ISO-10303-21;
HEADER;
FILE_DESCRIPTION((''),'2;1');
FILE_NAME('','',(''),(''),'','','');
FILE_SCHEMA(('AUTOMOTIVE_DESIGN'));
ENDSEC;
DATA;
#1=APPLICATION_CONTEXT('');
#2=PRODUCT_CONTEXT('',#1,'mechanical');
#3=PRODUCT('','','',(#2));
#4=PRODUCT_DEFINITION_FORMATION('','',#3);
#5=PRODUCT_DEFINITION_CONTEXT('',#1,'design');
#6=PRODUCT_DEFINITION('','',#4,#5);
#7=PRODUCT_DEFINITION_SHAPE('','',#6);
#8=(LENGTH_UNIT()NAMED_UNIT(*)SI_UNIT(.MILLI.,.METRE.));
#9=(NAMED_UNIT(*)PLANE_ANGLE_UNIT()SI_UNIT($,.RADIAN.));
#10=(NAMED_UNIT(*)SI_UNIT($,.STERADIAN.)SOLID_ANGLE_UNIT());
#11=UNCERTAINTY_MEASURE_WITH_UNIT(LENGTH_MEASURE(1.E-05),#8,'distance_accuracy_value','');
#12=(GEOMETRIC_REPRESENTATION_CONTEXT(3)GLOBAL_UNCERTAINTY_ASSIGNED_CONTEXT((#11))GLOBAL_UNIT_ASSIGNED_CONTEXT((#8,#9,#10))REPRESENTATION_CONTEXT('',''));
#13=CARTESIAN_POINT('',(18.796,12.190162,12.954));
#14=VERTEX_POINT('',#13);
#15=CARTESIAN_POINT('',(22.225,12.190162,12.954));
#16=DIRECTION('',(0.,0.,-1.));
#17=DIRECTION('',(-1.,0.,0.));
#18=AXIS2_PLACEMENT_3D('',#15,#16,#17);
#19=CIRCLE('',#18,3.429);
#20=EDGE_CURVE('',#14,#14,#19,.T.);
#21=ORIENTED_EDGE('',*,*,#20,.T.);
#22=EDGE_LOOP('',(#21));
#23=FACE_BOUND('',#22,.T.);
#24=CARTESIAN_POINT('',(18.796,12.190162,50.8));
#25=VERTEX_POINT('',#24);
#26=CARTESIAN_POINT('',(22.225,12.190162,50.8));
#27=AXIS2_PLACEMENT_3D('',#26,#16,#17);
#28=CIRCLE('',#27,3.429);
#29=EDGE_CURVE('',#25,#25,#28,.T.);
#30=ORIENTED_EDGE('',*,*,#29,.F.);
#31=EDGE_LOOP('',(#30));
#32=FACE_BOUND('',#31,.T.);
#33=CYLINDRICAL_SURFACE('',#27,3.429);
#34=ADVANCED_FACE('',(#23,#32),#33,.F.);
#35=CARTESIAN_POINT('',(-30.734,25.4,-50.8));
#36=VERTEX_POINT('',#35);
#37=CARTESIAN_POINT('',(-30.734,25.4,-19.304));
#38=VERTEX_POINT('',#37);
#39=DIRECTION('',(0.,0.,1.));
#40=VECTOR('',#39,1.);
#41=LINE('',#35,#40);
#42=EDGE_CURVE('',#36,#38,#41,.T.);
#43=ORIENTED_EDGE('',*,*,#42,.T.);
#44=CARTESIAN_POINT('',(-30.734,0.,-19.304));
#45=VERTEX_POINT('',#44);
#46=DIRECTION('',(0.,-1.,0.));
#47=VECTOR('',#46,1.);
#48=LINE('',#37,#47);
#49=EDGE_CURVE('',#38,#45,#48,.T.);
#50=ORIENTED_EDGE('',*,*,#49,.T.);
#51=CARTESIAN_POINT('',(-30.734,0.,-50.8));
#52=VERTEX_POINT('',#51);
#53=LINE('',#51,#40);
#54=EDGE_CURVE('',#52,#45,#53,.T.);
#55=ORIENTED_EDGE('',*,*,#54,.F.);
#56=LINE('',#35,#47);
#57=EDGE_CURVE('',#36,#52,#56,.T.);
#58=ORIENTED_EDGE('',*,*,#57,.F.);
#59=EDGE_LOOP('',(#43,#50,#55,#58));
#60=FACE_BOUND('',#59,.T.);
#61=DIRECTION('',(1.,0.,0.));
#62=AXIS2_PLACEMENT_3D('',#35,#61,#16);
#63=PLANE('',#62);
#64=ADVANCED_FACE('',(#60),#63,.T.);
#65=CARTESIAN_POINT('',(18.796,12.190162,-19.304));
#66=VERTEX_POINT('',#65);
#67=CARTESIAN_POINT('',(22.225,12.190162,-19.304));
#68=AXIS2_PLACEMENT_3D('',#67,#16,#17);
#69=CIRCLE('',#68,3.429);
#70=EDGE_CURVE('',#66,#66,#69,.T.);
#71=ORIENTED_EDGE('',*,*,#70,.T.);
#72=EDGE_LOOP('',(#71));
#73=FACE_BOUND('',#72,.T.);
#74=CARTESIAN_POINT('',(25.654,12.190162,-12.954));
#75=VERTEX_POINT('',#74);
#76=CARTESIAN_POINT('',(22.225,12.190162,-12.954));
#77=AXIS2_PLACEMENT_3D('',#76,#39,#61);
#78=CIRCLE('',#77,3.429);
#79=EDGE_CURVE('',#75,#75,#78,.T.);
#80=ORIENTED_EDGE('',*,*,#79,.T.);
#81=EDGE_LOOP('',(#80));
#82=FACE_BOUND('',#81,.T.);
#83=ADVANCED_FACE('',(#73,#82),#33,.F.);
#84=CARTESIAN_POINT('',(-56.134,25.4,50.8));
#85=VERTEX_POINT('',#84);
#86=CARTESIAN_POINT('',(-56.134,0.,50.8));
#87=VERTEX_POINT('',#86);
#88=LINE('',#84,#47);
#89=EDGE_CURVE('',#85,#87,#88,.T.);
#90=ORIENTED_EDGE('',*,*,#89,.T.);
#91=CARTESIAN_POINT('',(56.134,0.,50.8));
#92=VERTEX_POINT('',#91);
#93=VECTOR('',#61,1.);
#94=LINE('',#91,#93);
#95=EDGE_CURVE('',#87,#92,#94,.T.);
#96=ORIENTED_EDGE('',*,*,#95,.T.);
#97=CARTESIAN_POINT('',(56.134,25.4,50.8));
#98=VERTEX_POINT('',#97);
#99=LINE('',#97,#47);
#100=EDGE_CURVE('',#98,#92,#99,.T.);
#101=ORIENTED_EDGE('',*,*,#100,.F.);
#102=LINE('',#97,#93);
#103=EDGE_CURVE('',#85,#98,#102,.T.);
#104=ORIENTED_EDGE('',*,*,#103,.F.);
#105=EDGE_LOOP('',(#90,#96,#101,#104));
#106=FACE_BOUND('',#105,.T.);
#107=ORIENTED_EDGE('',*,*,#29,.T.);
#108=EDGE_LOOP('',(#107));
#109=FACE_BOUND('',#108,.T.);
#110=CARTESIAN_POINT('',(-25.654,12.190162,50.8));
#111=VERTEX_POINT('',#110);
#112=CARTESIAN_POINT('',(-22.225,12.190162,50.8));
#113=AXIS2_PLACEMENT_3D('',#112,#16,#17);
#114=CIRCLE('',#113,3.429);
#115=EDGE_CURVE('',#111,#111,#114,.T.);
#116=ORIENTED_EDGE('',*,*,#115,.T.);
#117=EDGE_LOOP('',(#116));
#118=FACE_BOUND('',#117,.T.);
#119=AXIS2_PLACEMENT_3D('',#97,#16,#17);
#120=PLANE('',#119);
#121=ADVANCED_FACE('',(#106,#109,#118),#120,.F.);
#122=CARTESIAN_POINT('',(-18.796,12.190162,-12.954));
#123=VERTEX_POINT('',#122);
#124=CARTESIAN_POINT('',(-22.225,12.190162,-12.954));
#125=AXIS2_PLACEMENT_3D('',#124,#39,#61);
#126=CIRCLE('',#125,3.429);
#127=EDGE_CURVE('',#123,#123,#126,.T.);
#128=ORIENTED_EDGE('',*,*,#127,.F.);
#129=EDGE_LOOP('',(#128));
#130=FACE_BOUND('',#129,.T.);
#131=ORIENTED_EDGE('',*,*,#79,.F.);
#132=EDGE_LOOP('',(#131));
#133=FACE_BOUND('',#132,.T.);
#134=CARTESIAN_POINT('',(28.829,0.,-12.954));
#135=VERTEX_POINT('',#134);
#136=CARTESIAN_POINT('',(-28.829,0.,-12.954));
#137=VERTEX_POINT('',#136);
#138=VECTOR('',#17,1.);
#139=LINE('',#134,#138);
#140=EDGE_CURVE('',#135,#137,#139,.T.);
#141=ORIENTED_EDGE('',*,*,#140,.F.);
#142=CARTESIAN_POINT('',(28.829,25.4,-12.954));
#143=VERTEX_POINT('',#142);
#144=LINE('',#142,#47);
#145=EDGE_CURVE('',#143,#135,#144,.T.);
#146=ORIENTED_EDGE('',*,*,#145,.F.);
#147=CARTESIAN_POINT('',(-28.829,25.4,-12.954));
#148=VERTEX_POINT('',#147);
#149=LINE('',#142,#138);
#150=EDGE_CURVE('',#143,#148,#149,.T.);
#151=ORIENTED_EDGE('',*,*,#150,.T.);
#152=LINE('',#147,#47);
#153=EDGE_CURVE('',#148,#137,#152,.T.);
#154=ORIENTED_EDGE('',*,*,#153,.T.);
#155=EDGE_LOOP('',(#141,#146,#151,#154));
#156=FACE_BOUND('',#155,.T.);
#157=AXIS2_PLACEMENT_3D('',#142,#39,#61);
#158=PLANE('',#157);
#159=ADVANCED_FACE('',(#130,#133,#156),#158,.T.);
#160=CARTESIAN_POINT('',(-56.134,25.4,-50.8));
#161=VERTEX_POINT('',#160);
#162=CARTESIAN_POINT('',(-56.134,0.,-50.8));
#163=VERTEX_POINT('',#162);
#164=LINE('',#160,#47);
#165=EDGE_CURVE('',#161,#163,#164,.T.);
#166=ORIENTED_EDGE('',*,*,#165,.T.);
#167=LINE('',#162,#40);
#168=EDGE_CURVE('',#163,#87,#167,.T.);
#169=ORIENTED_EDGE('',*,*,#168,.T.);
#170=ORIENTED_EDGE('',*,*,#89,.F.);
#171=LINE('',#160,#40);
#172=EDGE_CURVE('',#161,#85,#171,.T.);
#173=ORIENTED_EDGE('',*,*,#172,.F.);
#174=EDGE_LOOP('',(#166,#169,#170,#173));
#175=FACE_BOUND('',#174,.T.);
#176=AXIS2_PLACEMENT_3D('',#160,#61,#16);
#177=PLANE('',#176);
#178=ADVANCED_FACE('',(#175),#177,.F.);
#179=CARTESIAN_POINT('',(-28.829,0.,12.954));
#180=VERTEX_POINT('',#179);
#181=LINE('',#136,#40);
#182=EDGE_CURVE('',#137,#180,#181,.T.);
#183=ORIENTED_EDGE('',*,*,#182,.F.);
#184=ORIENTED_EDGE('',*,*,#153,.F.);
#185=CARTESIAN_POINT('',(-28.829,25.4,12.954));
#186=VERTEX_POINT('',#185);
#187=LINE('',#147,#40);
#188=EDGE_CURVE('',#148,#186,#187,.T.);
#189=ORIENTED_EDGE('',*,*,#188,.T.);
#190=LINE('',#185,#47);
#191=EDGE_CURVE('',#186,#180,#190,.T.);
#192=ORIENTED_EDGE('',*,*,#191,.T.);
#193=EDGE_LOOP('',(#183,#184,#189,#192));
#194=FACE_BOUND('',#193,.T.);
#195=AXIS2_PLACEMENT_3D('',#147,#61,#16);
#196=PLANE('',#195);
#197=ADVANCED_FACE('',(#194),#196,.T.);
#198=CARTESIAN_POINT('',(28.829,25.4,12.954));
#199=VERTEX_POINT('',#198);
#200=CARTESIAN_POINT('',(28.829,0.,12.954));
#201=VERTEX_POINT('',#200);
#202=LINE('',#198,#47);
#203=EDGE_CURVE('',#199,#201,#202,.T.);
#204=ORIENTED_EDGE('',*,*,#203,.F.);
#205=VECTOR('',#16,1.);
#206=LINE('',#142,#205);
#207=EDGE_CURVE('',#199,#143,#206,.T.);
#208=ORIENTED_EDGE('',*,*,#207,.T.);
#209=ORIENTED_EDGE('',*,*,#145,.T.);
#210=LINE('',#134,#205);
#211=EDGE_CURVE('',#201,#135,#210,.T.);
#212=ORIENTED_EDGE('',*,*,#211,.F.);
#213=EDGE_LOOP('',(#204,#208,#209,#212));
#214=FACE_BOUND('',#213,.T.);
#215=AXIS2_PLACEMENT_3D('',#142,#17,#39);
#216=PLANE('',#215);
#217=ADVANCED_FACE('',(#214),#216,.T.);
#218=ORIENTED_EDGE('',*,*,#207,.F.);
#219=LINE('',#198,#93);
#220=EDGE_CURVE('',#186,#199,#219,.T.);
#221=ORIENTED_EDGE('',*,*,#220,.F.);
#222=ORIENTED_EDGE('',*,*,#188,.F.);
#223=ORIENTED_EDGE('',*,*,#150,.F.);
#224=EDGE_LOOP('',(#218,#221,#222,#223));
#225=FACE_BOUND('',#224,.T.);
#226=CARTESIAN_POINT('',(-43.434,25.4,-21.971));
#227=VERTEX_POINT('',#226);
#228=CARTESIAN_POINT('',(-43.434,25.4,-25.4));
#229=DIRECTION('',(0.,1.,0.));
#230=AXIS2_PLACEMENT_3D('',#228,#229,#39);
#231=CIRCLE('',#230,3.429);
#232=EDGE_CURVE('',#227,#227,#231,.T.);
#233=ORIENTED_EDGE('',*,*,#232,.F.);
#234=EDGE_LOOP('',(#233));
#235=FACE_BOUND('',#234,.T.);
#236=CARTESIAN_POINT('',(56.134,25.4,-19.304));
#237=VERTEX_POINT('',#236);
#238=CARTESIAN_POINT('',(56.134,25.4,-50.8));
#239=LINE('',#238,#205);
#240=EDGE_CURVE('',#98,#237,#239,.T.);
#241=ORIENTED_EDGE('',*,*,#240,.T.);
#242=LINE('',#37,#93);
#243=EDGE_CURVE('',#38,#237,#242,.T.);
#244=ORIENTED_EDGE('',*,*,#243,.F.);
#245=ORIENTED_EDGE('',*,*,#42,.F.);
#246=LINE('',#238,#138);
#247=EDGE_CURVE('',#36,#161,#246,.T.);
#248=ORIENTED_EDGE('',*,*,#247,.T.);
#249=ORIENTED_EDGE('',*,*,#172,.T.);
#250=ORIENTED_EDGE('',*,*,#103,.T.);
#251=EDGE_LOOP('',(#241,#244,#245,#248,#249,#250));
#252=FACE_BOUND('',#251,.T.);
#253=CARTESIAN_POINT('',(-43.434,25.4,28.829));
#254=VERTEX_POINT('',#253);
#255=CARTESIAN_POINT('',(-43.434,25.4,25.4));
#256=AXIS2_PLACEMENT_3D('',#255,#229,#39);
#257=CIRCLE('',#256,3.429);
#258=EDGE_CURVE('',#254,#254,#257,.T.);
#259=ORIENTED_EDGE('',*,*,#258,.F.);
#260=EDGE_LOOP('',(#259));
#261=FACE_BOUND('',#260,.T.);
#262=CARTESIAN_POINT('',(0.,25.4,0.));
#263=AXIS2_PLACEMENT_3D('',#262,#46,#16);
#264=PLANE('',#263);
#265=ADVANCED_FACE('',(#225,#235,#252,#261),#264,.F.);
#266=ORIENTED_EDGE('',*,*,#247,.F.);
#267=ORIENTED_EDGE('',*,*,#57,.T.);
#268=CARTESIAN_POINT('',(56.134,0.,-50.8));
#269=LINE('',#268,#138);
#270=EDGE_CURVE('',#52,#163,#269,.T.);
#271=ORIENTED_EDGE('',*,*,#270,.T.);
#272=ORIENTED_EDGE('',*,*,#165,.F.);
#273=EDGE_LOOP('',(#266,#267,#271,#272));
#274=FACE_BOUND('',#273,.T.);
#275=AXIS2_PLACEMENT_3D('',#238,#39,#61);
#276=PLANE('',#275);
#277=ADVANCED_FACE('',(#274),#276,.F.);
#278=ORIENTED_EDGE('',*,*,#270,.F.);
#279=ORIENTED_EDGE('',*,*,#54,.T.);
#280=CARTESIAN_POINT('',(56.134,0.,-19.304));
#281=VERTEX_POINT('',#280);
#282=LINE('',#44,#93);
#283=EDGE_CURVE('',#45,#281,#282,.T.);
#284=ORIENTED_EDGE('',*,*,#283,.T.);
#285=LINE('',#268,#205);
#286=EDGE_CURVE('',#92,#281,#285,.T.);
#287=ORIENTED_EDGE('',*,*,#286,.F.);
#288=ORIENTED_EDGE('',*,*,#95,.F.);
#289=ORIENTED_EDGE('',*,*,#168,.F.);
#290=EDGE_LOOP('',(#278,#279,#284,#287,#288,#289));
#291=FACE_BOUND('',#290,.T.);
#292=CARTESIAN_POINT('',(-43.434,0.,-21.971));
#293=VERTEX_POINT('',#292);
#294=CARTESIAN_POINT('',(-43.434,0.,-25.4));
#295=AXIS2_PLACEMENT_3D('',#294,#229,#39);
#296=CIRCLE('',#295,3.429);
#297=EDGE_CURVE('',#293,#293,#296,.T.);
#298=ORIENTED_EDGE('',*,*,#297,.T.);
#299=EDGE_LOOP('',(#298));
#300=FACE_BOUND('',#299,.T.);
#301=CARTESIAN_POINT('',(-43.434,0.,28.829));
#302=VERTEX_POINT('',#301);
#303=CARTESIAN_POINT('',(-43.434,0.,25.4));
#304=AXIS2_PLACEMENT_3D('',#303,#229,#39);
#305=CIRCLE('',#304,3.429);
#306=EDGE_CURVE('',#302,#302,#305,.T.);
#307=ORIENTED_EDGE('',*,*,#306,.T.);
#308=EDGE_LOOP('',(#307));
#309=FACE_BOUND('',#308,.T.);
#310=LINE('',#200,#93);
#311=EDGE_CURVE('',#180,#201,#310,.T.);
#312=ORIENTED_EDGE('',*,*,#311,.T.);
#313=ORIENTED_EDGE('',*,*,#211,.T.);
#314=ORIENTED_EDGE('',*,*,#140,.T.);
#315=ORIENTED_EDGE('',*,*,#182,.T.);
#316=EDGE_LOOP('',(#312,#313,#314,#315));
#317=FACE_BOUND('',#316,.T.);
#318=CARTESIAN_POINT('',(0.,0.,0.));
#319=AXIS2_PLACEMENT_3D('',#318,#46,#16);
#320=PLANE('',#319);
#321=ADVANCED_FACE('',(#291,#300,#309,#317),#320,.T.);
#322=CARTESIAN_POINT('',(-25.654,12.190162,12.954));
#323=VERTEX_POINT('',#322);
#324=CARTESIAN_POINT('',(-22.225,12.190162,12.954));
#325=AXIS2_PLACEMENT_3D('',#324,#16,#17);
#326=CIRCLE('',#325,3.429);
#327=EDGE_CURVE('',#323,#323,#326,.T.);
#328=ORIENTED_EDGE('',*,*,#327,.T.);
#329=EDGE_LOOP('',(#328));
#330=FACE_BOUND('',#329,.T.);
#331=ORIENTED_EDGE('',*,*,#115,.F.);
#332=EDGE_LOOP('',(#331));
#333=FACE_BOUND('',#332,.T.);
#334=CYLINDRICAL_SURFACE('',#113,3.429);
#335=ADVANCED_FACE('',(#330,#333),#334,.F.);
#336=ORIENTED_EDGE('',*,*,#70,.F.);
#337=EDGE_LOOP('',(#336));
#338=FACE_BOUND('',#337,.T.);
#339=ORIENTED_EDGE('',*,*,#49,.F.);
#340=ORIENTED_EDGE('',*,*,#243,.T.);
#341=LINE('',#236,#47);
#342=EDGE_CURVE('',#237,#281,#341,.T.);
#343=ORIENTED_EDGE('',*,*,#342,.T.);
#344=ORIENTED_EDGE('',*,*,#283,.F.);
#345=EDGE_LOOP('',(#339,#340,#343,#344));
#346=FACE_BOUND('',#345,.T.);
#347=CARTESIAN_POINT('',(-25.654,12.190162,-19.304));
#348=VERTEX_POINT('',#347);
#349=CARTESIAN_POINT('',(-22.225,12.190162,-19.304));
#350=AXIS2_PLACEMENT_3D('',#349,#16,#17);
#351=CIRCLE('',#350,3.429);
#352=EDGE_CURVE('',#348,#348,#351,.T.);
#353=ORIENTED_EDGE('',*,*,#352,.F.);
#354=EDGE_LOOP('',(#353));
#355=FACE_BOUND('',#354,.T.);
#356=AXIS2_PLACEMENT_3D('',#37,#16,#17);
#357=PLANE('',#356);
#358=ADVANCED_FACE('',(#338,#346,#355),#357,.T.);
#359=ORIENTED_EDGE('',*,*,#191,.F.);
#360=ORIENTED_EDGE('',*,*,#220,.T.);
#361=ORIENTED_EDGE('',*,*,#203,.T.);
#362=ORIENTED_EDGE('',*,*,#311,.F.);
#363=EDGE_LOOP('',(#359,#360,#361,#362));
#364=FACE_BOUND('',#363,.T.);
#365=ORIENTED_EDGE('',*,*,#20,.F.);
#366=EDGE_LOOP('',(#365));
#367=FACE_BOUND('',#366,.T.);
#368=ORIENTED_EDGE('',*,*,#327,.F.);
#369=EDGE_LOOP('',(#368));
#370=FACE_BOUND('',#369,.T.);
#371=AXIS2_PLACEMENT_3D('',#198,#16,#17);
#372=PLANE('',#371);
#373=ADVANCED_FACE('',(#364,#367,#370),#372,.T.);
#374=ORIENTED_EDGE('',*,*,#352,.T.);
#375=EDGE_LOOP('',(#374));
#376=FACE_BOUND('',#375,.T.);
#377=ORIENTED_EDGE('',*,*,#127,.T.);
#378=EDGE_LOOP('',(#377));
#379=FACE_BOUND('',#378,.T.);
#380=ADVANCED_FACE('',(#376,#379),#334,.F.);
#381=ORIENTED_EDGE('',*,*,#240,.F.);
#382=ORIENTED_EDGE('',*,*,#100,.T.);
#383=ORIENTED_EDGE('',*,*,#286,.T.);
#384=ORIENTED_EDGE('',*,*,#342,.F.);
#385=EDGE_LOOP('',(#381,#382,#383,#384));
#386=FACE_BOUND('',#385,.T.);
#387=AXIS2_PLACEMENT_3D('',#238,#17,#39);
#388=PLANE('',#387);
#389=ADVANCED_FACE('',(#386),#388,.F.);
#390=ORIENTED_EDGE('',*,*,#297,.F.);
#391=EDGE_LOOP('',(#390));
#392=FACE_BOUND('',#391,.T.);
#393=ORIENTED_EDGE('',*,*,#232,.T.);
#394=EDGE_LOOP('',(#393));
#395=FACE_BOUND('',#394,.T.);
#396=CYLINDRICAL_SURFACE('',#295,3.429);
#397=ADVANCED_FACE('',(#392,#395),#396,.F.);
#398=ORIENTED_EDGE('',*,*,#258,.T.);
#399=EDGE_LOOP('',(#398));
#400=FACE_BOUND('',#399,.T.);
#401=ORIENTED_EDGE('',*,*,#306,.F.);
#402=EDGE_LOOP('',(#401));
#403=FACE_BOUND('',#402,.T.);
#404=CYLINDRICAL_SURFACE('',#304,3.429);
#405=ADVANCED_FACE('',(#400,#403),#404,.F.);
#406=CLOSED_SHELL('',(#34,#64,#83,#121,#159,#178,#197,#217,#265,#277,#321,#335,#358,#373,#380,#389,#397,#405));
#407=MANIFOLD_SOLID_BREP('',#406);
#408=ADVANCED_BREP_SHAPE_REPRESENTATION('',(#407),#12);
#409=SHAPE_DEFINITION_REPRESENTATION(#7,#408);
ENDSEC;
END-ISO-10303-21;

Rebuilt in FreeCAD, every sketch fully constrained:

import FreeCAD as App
import Part
import Sketcher
Q = App.Units.Quantity

doc = App.newDocument("Part")
body = doc.addObject("PartDesign::Body", "Body")

sketch1 = doc.addObject("Sketcher::SketchObject", "Sketch")
body.addObject(sketch1)
sketch1.AttachmentSupport = (doc.XZ_Plane, [""])
sketch1.MapMode = "FlatFace"
sketch1.addGeometry([
    Part.LineSegment(App.Vector(-56, -51, 0), App.Vector(-56, 51, 0)),
    Part.LineSegment(App.Vector(-56, 51, 0), App.Vector(56, 51, 0)),
    Part.LineSegment(App.Vector(56, 51, 0), App.Vector(56, -51, 0)),
    Part.LineSegment(App.Vector(56, -51, 0), App.Vector(-56, -51, 0)),
    Part.LineSegment(App.Vector(29, 13, 0), App.Vector(-29, 13, 0)),
    Part.LineSegment(App.Vector(-29, 13, 0), App.Vector(-29, -13, 0)),
    Part.LineSegment(App.Vector(-29, -13, 0), App.Vector(29, -13, 0)),
    Part.LineSegment(App.Vector(29, -13, 0), App.Vector(29, 13, 0)),
], False)
sketch1.addConstraint([
    Sketcher.Constraint("Coincident", 0, 2, 1, 1),
    Sketcher.Constraint("Coincident", 1, 2, 2, 1),
    Sketcher.Constraint("Coincident", 2, 2, 3, 1),
    Sketcher.Constraint("Coincident", 3, 2, 0, 1),
    Sketcher.Constraint("Coincident", 4, 2, 5, 1),
    Sketcher.Constraint("Coincident", 5, 2, 6, 1),
    Sketcher.Constraint("Coincident", 6, 2, 7, 1),
    Sketcher.Constraint("Coincident", 7, 2, 4, 1),
    Sketcher.Constraint("Vertical", 0),
    Sketcher.Constraint("Horizontal", 1),
    Sketcher.Constraint("Vertical", 2),
    Sketcher.Constraint("Horizontal", 3),
    Sketcher.Constraint("Horizontal", 4),
    Sketcher.Constraint("Vertical", 5),
    Sketcher.Constraint("Horizontal", 6),
    Sketcher.Constraint("Vertical", 7),
    Sketcher.Constraint("Symmetric", 0, 2, 2, 2, -1, 1),
    Sketcher.Constraint("Symmetric", 4, 2, 6, 2, -1, 1),
    Sketcher.Constraint("DistanceY", 0, 1, 0, 2, Q("4 in")),
    Sketcher.Constraint("DistanceX", 1, 1, 1, 2, Q("4.42 in")),
    Sketcher.Constraint("DistanceX", 4, 2, 4, 1, Q("2.27 in")),
    Sketcher.Constraint("DistanceY", 5, 2, 5, 1, Q("1.02 in")),
])
pad1 = doc.addObject("PartDesign::Pad", "Pad")
body.addObject(pad1)
pad1.Profile = sketch1
pad1.Length = Q("1 in")
pad1.Reversed = True

sketch2 = doc.addObject("Sketcher::SketchObject", "Sketch001")
body.addObject(sketch2)
sketch2.AttachmentSupport = (doc.XZ_Plane, [""])
sketch2.MapMode = "FlatFace"
sketch2.addGeometry([
    Part.LineSegment(App.Vector(-31, -51, 0), App.Vector(-31, -19, 0)),
    Part.LineSegment(App.Vector(-31, -19, 0), App.Vector(56, -19, 0)),
    Part.LineSegment(App.Vector(56, -19, 0), App.Vector(56, -51, 0)),
    Part.LineSegment(App.Vector(56, -51, 0), App.Vector(-31, -51, 0)),
], False)
sketch2.addConstraint([
    Sketcher.Constraint("Coincident", 0, 2, 1, 1),
    Sketcher.Constraint("Coincident", 1, 2, 2, 1),
    Sketcher.Constraint("Coincident", 2, 2, 3, 1),
    Sketcher.Constraint("Coincident", 3, 2, 0, 1),
    Sketcher.Constraint("Vertical", 0),
    Sketcher.Constraint("Horizontal", 1),
    Sketcher.Constraint("Vertical", 2),
    Sketcher.Constraint("Horizontal", 3),
    Sketcher.Constraint("DistanceY", 2, 2, -1, 1, Q("2 in")),
    Sketcher.Constraint("DistanceX", 1, 1, 1, 2, Q("3.42 in")),
    Sketcher.Constraint("DistanceY", 0, 1, 0, 2, Q("1.24 in")),
    Sketcher.Constraint("DistanceX", 0, 2, -1, 1, Q("1.21 in")),
])
pocket1 = doc.addObject("PartDesign::Pocket", "Pocket")
body.addObject(pocket1)
pocket1.Profile = sketch2
pocket1.Type = "ThroughAll"

sketch3 = doc.addObject("Sketcher::SketchObject", "Sketch002")
body.addObject(sketch3)
sketch3.AttachmentSupport = (doc.XY_Plane, [""])
sketch3.MapMode = "FlatFace"
sketch3.AttachmentOffset = App.Placement(App.Vector(0, 0, -0.76 * 25.4), App.Rotation())
sketch3.addGeometry([
    Part.Circle(App.Vector(22.2, 12.2, 0), App.Vector(0, 0, 1), 3.4),
    Part.Circle(App.Vector(-22.2, 12.2, 0), App.Vector(0, 0, 1), 3.4),
], False)
sketch3.addConstraint([
    Sketcher.Constraint("Equal", 0, 1),
    Sketcher.Constraint("Symmetric", 0, 3, 1, 3, -2),
    Sketcher.Constraint("Diameter", 0, Q("0.27 in")),
    Sketcher.Constraint("DistanceX", 1, 3, 0, 3, Q("1.75 in")),
    Sketcher.Constraint("DistanceY", -1, 1, 0, 3, Q("12.190162 mm")),
])
pocket2 = doc.addObject("PartDesign::Pocket", "Pocket001")
body.addObject(pocket2)
pocket2.Profile = sketch3
pocket2.Type = "ThroughAll"
pocket2.Reversed = True

sketch4 = doc.addObject("Sketcher::SketchObject", "Sketch003")
body.addObject(sketch4)
sketch4.AttachmentSupport = (doc.XZ_Plane, [""])
sketch4.MapMode = "FlatFace"
sketch4.AttachmentOffset = App.Placement(App.Vector(0, 0, -1 * 25.4), App.Rotation())
sketch4.addGeometry([
    Part.Circle(App.Vector(-43.4, -25.4, 0), App.Vector(0, 0, 1), 3.4),
    Part.Circle(App.Vector(-43.4, 25.4, 0), App.Vector(0, 0, 1), 3.4),
], False)
sketch4.addConstraint([
    Sketcher.Constraint("Equal", 0, 1),
    Sketcher.Constraint("Symmetric", 0, 3, 1, 3, -1),
    Sketcher.Constraint("Diameter", 0, Q("0.27 in")),
    Sketcher.Constraint("DistanceY", 0, 3, -1, 1, Q("1 in")),
    Sketcher.Constraint("DistanceX", 0, 3, -1, 1, Q("1.71 in")),
])
pocket3 = doc.addObject("PartDesign::Pocket", "Pocket002")
body.addObject(pocket3)
pocket3.Profile = sketch4
pocket3.Type = "ThroughAll"
pocket3.Reversed = True

doc.recompute()
